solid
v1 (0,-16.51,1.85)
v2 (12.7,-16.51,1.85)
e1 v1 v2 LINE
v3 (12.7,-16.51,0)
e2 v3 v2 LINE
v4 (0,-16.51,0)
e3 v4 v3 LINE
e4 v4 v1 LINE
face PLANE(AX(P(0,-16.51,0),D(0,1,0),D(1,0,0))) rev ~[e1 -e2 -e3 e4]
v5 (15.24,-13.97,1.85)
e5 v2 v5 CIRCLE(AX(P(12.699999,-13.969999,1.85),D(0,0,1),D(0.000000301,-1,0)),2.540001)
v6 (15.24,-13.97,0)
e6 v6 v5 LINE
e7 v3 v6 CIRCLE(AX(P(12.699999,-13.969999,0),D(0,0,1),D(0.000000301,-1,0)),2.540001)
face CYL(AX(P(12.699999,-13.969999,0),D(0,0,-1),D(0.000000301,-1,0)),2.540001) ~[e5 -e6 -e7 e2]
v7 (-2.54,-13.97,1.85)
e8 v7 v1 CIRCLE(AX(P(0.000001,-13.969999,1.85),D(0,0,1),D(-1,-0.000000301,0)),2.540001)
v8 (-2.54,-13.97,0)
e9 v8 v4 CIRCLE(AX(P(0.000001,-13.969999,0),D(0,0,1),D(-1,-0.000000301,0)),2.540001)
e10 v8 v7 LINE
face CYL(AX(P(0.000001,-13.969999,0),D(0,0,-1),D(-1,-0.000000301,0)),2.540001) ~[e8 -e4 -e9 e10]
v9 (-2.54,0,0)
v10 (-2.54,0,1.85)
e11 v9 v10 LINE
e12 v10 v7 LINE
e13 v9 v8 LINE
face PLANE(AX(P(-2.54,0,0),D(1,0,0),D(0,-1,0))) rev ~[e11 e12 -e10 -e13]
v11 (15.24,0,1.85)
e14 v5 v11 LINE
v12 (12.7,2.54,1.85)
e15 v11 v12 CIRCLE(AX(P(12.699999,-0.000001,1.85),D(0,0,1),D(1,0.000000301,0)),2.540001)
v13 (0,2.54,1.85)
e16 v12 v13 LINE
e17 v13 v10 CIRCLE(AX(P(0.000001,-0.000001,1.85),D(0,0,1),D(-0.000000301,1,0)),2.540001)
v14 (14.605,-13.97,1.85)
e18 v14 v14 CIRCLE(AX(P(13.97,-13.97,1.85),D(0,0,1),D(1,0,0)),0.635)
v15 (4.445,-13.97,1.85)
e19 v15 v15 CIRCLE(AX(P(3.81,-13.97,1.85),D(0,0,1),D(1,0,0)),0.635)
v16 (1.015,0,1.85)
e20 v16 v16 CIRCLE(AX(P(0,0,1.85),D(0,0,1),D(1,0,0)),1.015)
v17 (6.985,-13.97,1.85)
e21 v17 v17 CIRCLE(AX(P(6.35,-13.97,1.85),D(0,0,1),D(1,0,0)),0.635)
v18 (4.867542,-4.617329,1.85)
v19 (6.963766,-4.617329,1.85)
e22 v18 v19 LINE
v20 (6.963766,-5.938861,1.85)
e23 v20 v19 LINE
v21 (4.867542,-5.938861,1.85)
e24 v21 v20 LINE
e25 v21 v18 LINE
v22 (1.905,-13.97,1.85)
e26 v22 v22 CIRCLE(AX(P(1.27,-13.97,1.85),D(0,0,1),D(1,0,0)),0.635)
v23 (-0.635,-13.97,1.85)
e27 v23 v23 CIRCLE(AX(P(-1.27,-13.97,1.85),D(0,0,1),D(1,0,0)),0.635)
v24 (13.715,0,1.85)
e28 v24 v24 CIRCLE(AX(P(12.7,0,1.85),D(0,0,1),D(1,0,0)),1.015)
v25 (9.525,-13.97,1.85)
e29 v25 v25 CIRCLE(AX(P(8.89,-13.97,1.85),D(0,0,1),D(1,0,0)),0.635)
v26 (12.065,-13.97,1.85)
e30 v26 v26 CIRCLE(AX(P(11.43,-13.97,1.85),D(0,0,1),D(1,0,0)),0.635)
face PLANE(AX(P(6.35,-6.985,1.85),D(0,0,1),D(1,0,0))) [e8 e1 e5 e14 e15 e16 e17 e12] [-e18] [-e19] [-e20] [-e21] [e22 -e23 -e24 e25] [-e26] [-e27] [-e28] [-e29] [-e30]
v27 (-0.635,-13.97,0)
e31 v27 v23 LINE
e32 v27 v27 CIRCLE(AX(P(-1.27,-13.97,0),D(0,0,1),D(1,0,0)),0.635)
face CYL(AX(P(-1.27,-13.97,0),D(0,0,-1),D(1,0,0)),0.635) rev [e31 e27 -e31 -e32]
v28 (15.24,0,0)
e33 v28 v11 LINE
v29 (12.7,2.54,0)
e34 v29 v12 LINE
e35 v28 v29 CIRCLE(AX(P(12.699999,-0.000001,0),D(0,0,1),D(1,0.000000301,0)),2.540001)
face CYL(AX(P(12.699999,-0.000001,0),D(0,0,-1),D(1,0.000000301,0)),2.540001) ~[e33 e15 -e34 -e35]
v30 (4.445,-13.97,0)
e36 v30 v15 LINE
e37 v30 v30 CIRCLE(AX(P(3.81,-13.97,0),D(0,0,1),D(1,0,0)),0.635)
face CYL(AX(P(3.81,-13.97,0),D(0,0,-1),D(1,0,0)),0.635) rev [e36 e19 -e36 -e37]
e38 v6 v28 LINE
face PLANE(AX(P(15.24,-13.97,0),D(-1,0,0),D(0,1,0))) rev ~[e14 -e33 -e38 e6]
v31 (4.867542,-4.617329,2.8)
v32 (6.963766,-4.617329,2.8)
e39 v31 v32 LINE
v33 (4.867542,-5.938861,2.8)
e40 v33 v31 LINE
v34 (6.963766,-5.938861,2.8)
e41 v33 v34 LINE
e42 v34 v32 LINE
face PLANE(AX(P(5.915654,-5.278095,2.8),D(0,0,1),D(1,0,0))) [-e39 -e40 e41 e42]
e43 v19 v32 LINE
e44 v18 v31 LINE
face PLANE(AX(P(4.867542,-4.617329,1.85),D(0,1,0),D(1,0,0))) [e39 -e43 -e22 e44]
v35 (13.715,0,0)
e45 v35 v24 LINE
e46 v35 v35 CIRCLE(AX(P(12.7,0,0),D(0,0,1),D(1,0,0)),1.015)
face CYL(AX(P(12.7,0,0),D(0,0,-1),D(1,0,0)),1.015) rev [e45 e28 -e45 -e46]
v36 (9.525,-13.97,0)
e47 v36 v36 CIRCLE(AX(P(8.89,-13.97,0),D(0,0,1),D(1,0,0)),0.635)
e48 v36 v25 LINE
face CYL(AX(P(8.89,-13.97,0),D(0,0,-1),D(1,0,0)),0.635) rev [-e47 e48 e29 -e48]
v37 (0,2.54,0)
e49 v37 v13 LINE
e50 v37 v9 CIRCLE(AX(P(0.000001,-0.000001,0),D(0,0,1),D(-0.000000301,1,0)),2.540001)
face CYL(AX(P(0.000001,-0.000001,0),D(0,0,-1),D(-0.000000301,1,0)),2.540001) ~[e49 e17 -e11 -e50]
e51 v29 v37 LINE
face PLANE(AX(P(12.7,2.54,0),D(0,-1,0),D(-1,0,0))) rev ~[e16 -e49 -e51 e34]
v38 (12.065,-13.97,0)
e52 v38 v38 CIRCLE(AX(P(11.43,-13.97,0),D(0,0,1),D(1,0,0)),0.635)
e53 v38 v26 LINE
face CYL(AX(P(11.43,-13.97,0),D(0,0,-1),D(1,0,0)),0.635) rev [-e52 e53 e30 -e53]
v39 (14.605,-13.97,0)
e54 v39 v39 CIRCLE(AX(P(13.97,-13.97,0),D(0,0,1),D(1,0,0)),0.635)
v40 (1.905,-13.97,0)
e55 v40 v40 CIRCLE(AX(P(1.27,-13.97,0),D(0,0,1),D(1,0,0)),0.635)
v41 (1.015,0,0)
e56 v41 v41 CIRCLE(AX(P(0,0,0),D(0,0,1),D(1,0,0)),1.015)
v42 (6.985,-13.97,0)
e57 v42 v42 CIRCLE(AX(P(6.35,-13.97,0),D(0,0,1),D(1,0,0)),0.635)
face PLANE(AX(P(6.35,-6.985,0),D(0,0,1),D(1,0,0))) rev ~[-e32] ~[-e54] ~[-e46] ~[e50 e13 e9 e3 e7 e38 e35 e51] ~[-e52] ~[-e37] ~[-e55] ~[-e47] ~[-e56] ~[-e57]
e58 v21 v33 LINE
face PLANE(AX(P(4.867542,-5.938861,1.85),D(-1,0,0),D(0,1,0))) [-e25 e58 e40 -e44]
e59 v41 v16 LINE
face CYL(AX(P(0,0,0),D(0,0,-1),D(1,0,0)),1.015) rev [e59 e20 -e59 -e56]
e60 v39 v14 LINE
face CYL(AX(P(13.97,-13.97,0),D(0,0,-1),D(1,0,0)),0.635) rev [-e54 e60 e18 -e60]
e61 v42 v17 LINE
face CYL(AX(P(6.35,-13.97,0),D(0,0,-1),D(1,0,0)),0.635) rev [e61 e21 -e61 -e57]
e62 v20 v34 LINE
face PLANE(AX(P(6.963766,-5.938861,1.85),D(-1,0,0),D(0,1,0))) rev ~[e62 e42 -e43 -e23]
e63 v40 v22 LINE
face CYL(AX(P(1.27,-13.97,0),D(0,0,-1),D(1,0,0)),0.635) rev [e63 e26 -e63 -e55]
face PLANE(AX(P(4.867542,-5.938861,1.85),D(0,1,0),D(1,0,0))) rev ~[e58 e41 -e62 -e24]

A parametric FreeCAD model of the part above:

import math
import FreeCAD as App
import Part
import Sketcher

V = App.Vector
Q = App.Units.Quantity


def add_polygon(sketch, points):
    """Adds a closed chain of lines whose ends are joined by coincident constraints."""
    first, n = sketch.GeometryCount, len(points)
    for a, b in zip(points, points[1:] + points[:1]):
        sketch.addGeometry(Part.LineSegment(App.Vector(*a, 0), App.Vector(*b, 0)), False)
    for i in range(n):
        sketch.addConstraint(Sketcher.Constraint("Coincident", first + i, 2, first + (i + 1) % n, 1))

doc = App.newDocument("Part")
params = doc.addObject("Spreadsheet::Sheet", "Params")
for row, (alias, value) in enumerate([
    ("sketch1_radius", "0.1 in"),
    ("sketch1_diameter", "0.05 in"),
    ("sketch1_width", "0.5 in"),
    ("sketch1_height", "0.55 in"),
    ("pad1_length", "1.85 mm"),
    ("pad2_length", "0.95 mm"),
], start=1):
    params.set(f"A{row}", alias)
    params.set(f"B{row}", "=" + value)
    params.setAlias(f"B{row}", alias)

body = doc.addObject("PartDesign::Body", "Body")

# Sketch on XY plane
sketch1 = doc.addObject("Sketcher::SketchObject", "Sketch")
body.addObject(sketch1)
sketch1.AttachmentSupport = (doc.XY_Plane, [""])
sketch1.MapMode = "FlatFace"
sketch1.addGeometry([
    Part.ArcOfCircle(Part.Circle(V(0, -14, 0), V(0, 0, 1), 2.5), math.radians(-180), math.radians(-90)),  # 0
    Part.LineSegment(V(0, -16.5, 0), V(12.7, -16.5, 0)),  # 1
    Part.ArcOfCircle(Part.Circle(V(12.7, -14, 0), V(0, 0, 1), 2.5), math.radians(-90), math.radians(0)),  # 2
    Part.LineSegment(V(15.2, -14, 0), V(15.2, 0, 0)),  # 3
    Part.ArcOfCircle(Part.Circle(V(12.7, 0, 0), V(0, 0, 1), 2.5), math.radians(0), math.radians(90)),  # 4
    Part.LineSegment(V(12.7, 2.5, 0), V(0, 2.5, 0)),  # 5
    Part.ArcOfCircle(Part.Circle(V(0, 0, 0), V(0, 0, 1), 2.5), math.radians(90), math.radians(180)),  # 6
    Part.LineSegment(V(-2.5, 0, 0), V(-2.5, -14, 0)),  # 7
    Part.Circle(V(-1.3, -14, 0), V(0, 0, 1), 0.6),  # 8
    Part.Circle(V(1.3, -14, 0), V(0, 0, 1), 0.6),  # 9
    Part.Circle(V(3.8, -14, 0), V(0, 0, 1), 0.6),  # 10
    Part.Circle(V(6.3, -14, 0), V(0, 0, 1), 0.6),  # 11
    Part.Circle(V(8.9, -14, 0), V(0, 0, 1), 0.6),  # 12
    Part.Circle(V(11.4, -14, 0), V(0, 0, 1), 0.6),  # 13
    Part.Circle(V(14, -14, 0), V(0, 0, 1), 0.6),  # 14
    Part.Circle(V(0, 0, 0), V(0, 0, 1), 1),  # 15
    Part.Circle(V(12.7, 0, 0), V(0, 0, 1), 1),  # 16
], False)
sketch1.addConstraint([
    Sketcher.Constraint("Tangent", 0, 2, 1, 1),
    Sketcher.Constraint("Tangent", 1, 2, 2, 1),
    Sketcher.Constraint("Tangent", 2, 2, 3, 1),
    Sketcher.Constraint("Tangent", 3, 2, 4, 1),
    Sketcher.Constraint("Tangent", 4, 2, 5, 1),
    Sketcher.Constraint("Tangent", 5, 2, 6, 1),
    Sketcher.Constraint("Tangent", 6, 2, 7, 1),
    Sketcher.Constraint("Tangent", 7, 2, 0, 1),
    Sketcher.Constraint("Horizontal", 1),
    Sketcher.Constraint("Vertical", 3),
    Sketcher.Constraint("Horizontal", 5),
    Sketcher.Constraint("Vertical", 7),
    Sketcher.Constraint("Coincident", 6, 3, -1, 1),
    Sketcher.Constraint("Coincident", 15, 3, -1, 1),
    Sketcher.Constraint("Coincident", 16, 3, 4, 3),
    Sketcher.Constraint("Equal", 0, 2),
    Sketcher.Constraint("Equal", 2, 4),
    Sketcher.Constraint("Equal", 4, 6),
    Sketcher.Constraint("Equal", 8, 9),
    Sketcher.Constraint("Equal", 9, 10),
    Sketcher.Constraint("Equal", 10, 11),
    Sketcher.Constraint("Equal", 11, 12),
    Sketcher.Constraint("Equal", 12, 13),
    Sketcher.Constraint("Equal", 13, 14),
    Sketcher.Constraint("Equal", 15, 16),
    Sketcher.Constraint("Symmetric", 8, 3, 9, 3, -2),
    Sketcher.Constraint("Horizontal", 2, 3, 8, 3),
    Sketcher.Constraint("Horizontal", 9, 3, 10, 3),
    Sketcher.Constraint("Horizontal", 10, 3, 11, 3),
    Sketcher.Constraint("Horizontal", 11, 3, 12, 3),
    Sketcher.Constraint("Horizontal", 12, 3, 13, 3),
    Sketcher.Constraint("Horizontal", 13, 3, 14, 3),
    Sketcher.Constraint("Radius", 0, Q("0.1 in")),
    Sketcher.Constraint("Diameter", 8, Q("0.05 in")),
    Sketcher.Constraint("DistanceX", 1, 1, 1, 2, Q("0.5 in")),
    Sketcher.Constraint("DistanceY", 3, 1, 3, 2, Q("0.55 in")),
    Sketcher.Constraint("DistanceX", 8, 3, 9, 3, Q("0.1 in")),
    Sketcher.Constraint("DistanceX", 9, 3, 10, 3, Q("0.1 in")),
    Sketcher.Constraint("DistanceX", 10, 3, 11, 3, Q("0.1 in")),
    Sketcher.Constraint("DistanceX", 11, 3, 12, 3, Q("0.1 in")),
    Sketcher.Constraint("DistanceX", 12, 3, 13, 3, Q("0.1 in")),
    Sketcher.Constraint("DistanceX", 13, 3, 14, 3, Q("0.1 in")),
    Sketcher.Constraint("Diameter", 15, Q("2.03 mm")),
])
sketch1.setExpression("Constraints[32]", "Params.sketch1_radius")
sketch1.setExpression("Constraints[33]", "Params.sketch1_diameter")
sketch1.setExpression("Constraints[34]", "Params.sketch1_width")
sketch1.setExpression("Constraints[35]", "Params.sketch1_height")
pad1 = doc.addObject("PartDesign::Pad", "Pad")
body.addObject(pad1)
pad1.Profile = sketch1
pad1.setExpression("Length", "Params.pad1_length")

# Sketch on XY plane
sketch2 = doc.addObject("Sketcher::SketchObject", "Sketch001")
body.addObject(sketch2)
sketch2.AttachmentSupport = (doc.XY_Plane, [""])
sketch2.MapMode = "FlatFace"
sketch2.AttachmentOffset = App.Placement(V(0, 0, 1.85), App.Rotation())
add_polygon(sketch2, [(4.9, -4.6), (4.9, -5.9), (7, -5.9), (7, -4.6)])  # lines 0-3
sketch2.addConstraint([
    Sketcher.Constraint("Vertical", 0),
    Sketcher.Constraint("Horizontal", 1),
    Sketcher.Constraint("Vertical", 2),
    Sketcher.Constraint("Horizontal", 3),
    Sketcher.Constraint("DistanceX", 1, 1, 1, 2, Q("2.096224 mm")),
    Sketcher.Constraint("DistanceY", 0, 2, 0, 1, Q("1.321533 mm")),
    Sketcher.Constraint("DistanceY", 0, 2, -1, 1, Q("5.938861 mm")),
    Sketcher.Constraint("DistanceX", -1, 1, 0, 2, Q("4.867542 mm")),
])
pad2 = doc.addObject("PartDesign::Pad", "Pad001")
body.addObject(pad2)
pad2.Profile = sketch2
pad2.setExpression("Length", "Params.pad2_length")

doc.recompute()
